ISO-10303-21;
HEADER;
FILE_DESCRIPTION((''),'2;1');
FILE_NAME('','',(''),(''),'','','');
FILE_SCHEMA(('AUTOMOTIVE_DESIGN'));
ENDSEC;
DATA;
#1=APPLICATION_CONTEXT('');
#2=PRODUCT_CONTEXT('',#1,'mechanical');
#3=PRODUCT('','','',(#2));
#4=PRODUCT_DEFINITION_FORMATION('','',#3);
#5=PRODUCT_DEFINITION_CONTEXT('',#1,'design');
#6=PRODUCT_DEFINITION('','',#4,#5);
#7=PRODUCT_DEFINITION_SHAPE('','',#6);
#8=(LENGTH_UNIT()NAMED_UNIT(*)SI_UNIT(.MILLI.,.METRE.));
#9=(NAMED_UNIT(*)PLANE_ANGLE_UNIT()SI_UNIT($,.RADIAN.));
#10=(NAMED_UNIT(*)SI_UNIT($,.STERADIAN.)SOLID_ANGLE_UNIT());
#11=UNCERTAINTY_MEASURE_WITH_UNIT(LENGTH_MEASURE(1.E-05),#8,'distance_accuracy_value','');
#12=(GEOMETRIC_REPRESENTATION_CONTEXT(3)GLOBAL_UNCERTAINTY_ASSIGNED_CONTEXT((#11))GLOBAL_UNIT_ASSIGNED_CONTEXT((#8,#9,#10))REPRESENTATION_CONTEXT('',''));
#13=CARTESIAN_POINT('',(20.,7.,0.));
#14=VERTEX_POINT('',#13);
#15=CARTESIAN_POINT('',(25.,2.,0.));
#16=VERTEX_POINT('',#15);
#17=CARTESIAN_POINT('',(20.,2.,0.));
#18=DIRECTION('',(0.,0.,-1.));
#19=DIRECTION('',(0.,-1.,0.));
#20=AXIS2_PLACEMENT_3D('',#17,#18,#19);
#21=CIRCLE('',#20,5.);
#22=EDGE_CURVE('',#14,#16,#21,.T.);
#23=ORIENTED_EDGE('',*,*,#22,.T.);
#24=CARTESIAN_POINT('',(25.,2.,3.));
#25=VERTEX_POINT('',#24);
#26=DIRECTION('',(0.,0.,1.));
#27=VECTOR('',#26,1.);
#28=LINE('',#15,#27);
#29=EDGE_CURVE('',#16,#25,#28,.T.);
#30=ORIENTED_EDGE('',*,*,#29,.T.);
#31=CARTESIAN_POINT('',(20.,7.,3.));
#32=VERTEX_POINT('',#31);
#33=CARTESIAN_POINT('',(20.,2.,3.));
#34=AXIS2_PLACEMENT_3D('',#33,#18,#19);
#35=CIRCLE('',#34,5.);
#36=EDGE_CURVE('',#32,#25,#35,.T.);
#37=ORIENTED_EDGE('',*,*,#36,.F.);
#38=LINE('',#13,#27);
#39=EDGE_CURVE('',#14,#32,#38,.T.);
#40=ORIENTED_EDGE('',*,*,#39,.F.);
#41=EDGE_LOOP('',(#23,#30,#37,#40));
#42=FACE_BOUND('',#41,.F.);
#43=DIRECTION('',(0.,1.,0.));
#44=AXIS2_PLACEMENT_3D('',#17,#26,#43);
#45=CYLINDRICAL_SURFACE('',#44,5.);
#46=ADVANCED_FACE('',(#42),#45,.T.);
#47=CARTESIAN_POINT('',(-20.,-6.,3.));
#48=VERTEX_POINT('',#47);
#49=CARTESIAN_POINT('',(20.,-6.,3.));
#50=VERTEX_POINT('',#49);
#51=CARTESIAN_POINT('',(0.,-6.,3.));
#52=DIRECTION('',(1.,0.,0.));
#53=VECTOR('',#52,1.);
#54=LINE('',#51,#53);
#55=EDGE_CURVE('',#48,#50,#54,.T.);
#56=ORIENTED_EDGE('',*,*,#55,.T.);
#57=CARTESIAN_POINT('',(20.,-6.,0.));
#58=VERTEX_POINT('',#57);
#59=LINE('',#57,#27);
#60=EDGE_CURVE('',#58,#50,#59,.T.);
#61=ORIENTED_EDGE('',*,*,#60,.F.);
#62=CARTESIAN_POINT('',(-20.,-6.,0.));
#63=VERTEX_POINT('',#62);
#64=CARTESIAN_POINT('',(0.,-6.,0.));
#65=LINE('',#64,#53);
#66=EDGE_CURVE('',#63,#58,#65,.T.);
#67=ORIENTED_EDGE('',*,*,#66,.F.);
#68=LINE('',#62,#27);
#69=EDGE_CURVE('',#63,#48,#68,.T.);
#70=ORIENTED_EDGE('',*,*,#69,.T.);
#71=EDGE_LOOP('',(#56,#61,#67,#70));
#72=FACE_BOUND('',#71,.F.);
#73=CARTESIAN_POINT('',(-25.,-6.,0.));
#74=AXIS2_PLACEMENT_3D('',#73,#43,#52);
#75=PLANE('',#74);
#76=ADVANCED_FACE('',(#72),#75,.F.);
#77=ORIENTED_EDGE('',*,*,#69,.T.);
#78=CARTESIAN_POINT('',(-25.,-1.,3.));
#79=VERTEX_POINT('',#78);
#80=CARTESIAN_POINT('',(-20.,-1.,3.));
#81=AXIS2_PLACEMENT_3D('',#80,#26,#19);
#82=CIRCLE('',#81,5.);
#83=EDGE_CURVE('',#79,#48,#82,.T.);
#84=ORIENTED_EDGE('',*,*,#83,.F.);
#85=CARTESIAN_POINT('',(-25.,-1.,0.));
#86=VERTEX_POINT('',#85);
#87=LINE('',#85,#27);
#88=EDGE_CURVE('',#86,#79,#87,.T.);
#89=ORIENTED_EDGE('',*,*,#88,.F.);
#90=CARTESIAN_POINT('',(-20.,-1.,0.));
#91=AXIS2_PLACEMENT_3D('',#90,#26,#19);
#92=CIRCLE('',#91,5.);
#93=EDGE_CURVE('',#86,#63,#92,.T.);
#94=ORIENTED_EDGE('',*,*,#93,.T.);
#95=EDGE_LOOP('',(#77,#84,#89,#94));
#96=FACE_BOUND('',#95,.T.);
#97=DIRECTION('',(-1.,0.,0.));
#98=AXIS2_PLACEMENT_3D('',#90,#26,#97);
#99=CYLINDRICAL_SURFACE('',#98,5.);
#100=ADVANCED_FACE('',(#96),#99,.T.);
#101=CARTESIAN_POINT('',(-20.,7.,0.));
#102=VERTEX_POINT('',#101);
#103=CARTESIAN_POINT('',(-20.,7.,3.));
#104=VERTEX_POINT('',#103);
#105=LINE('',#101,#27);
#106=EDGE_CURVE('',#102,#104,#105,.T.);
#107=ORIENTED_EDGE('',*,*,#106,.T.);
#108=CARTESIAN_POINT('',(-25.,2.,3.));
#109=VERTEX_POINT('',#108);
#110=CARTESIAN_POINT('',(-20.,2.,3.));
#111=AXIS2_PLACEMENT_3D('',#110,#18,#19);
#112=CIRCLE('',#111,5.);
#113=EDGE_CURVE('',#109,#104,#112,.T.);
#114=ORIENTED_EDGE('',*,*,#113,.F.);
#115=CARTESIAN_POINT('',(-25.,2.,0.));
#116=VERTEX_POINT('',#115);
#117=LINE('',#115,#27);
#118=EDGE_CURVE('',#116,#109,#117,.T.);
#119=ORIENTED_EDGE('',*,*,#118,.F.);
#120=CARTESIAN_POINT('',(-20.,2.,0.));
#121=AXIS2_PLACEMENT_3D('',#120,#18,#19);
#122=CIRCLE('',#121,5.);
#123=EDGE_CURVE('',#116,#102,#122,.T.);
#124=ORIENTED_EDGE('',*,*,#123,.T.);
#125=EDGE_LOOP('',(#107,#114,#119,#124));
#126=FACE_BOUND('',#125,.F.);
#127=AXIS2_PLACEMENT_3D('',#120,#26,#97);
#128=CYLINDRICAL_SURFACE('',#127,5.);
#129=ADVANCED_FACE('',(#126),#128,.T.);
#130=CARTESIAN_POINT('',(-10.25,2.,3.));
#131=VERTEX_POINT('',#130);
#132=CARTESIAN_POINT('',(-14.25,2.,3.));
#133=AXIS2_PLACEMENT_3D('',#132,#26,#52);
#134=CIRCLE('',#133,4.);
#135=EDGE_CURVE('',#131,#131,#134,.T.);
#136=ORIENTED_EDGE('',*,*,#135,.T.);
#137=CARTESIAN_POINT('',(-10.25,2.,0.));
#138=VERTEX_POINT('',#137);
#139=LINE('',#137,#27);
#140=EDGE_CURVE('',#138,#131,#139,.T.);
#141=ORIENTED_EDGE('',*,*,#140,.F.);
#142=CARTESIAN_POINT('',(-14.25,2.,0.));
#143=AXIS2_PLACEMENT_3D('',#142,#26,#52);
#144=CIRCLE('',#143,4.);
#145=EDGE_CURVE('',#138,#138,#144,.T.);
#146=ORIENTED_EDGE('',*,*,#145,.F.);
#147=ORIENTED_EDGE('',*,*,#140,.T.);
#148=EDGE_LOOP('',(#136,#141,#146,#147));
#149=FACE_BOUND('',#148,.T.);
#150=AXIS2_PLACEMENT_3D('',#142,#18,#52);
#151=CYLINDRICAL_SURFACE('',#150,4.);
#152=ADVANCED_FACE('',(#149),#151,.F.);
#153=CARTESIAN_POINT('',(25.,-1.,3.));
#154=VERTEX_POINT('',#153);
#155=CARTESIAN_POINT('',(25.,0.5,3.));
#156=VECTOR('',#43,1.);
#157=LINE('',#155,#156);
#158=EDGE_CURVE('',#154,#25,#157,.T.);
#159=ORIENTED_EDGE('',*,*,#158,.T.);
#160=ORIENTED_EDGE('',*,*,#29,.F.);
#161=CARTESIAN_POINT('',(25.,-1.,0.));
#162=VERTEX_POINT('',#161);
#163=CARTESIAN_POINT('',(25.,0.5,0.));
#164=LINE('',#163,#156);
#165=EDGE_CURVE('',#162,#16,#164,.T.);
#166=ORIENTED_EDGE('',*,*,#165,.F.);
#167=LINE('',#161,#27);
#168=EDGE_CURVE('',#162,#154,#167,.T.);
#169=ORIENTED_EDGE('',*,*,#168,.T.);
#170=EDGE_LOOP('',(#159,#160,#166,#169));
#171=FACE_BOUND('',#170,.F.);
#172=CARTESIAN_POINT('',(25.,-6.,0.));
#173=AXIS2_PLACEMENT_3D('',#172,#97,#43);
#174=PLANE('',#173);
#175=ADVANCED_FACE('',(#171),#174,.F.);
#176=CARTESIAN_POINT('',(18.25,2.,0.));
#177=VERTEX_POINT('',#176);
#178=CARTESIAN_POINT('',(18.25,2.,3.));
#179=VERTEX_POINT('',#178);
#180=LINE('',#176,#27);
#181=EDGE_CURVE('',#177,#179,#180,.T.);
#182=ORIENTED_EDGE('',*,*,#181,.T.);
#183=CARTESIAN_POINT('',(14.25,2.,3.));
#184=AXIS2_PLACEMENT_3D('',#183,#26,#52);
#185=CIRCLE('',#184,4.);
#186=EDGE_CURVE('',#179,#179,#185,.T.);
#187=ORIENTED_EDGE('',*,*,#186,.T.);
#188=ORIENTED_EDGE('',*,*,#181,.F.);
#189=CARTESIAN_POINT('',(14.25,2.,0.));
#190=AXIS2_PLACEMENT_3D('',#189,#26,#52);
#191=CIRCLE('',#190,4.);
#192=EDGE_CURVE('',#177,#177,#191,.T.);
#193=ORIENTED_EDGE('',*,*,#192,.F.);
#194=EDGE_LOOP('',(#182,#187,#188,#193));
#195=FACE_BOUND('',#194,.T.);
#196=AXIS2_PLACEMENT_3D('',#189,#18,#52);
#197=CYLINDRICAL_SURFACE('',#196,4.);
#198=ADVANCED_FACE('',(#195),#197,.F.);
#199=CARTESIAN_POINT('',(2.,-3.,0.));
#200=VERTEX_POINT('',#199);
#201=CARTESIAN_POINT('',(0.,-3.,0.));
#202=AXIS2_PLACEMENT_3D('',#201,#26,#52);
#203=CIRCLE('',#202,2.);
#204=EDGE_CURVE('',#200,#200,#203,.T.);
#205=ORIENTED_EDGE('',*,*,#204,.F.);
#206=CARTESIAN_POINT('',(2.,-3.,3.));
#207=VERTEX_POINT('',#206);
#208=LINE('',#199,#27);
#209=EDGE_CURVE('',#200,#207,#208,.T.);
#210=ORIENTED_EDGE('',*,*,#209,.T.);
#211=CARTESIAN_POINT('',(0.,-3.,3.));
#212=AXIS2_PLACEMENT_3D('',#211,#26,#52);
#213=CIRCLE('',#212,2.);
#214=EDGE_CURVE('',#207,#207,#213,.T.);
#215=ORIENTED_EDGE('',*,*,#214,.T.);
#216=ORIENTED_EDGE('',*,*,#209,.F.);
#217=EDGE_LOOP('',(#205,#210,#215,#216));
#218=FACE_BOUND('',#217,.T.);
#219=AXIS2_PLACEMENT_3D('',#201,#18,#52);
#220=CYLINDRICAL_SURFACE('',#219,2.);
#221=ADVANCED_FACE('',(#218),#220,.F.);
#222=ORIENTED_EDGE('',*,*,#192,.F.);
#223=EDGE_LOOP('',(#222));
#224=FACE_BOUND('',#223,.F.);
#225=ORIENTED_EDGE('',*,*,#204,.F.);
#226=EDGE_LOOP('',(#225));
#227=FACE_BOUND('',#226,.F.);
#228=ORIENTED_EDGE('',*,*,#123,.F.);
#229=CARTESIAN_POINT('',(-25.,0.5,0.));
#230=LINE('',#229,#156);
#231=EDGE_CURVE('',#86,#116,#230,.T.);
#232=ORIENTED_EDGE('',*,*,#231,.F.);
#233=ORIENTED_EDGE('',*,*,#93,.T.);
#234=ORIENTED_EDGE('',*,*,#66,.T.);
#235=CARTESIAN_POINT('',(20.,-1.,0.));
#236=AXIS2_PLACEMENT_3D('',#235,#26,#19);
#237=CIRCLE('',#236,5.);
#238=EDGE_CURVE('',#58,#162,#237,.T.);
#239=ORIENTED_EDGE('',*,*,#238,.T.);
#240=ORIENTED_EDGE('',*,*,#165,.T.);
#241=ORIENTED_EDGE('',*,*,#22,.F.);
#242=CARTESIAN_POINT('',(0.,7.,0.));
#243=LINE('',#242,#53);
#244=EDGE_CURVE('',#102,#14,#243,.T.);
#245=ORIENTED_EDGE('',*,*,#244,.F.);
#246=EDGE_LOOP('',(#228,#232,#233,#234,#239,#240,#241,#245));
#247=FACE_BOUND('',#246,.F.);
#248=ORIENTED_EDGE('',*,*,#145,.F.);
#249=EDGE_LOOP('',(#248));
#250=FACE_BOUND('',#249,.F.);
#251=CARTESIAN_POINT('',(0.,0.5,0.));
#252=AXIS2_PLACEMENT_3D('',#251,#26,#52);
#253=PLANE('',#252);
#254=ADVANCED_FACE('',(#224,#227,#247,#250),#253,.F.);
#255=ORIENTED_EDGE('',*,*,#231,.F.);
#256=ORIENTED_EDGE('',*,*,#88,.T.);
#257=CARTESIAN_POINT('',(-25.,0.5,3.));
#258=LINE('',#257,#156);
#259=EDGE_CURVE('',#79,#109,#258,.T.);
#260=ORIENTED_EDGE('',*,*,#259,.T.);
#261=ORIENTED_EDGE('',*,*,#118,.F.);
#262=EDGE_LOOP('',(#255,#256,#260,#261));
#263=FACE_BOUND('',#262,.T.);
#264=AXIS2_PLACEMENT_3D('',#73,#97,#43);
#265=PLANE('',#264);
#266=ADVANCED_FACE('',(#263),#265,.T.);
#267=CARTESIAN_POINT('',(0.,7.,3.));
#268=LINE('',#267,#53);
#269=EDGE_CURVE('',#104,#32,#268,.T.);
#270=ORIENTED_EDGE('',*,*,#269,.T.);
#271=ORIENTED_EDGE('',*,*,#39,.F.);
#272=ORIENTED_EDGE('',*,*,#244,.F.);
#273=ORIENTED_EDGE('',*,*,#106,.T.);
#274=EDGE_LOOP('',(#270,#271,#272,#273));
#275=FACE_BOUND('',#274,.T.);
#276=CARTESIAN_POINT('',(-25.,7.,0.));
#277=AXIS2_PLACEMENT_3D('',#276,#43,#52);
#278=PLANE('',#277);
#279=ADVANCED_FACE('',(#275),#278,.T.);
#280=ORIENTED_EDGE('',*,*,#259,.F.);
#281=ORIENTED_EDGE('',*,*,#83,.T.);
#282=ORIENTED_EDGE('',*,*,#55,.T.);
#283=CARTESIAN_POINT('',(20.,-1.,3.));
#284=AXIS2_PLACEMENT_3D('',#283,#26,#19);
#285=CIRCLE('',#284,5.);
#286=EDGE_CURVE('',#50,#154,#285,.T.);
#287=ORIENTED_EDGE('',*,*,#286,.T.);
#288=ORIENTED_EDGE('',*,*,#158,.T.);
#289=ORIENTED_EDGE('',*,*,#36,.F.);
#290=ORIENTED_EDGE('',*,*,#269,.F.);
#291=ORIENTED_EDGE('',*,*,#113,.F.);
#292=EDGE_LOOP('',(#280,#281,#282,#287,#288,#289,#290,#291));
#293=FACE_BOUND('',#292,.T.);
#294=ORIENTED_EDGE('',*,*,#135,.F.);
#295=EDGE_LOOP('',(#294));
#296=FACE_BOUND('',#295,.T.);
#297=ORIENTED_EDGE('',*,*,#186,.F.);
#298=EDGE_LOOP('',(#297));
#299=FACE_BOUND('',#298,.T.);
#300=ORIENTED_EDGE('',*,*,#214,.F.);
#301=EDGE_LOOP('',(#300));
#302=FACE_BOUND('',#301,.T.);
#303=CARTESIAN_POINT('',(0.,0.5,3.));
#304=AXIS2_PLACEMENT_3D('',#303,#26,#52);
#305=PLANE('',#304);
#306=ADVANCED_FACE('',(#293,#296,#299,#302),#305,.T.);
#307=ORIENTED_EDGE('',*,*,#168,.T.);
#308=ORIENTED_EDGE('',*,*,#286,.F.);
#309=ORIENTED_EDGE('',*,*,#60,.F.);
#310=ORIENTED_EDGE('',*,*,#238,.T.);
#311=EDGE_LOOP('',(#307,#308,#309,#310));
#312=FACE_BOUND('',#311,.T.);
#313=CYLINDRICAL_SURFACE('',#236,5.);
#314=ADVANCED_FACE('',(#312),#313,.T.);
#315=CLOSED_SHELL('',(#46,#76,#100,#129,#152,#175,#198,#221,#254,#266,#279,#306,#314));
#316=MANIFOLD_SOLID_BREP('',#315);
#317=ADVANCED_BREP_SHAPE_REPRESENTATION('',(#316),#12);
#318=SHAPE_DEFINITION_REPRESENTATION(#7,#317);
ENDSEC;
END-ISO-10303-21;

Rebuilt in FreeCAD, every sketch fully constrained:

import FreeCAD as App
import Part
import Sketcher

V = App.Vector
Q = App.Units.Quantity


def edges_at(feature, points):
    """Names of the edges that pass closest to the given points."""
    edges = feature.Shape.Edges
    near = lambda p: min(range(len(edges)), key=lambda i: edges[i].distToShape(Part.Vertex(*p))[0])
    return sorted({f"Edge{near(p) + 1}" for p in points})

doc = App.newDocument("Part")
body = doc.addObject("PartDesign::Body", "Body")

# Sketch on XY plane
sketch1 = doc.addObject("Sketcher::SketchObject", "Sketch")
body.addObject(sketch1)
sketch1.AttachmentSupport = (doc.XY_Plane, [""])
sketch1.MapMode = "FlatFace"
sketch1.addGeometry(Part.LineSegment(V(-25, 7, 0), V(-25, -6, 0)), False)
sketch1.addGeometry(Part.LineSegment(V(-25, -6, 0), V(25, -6, 0)), False)
sketch1.addGeometry(Part.LineSegment(V(25, -6, 0), V(25, 7, 0)), False)
sketch1.addGeometry(Part.LineSegment(V(25, 7, 0), V(-25, 7, 0)), False)
sketch1.addGeometry(Part.Circle(V(0, -3, 0), V(0, 0, 1), 2), False)
sketch1.addGeometry(Part.Circle(V(-14.25, 2, 0), V(0, 0, 1), 4), False)
sketch1.addGeometry(Part.Circle(V(14.25, 2, 0), V(0, 0, 1), 4), False)
sketch1.addConstraint(Sketcher.Constraint("Coincident", 0, 2, 1, 1))
sketch1.addConstraint(Sketcher.Constraint("Coincident", 1, 2, 2, 1))
sketch1.addConstraint(Sketcher.Constraint("Coincident", 2, 2, 3, 1))
sketch1.addConstraint(Sketcher.Constraint("Coincident", 3, 2, 0, 1))
sketch1.addConstraint(Sketcher.Constraint("Vertical", 0))
sketch1.addConstraint(Sketcher.Constraint("Horizontal", 1))
sketch1.addConstraint(Sketcher.Constraint("Vertical", 2))
sketch1.addConstraint(Sketcher.Constraint("Horizontal", 3))
sketch1.addConstraint(Sketcher.Constraint("Equal", 5, 6))
sketch1.addConstraint(Sketcher.Constraint("Symmetric", 5, 3, 6, 3, -2))
sketch1.addConstraint(Sketcher.Constraint("PointOnObject", 4, 3, -2))
sketch1.addConstraint(Sketcher.Constraint("Diameter", 4, Q("4 mm")))
sketch1.addConstraint(Sketcher.Constraint("Diameter", 5, Q("8 mm")))
sketch1.addConstraint(Sketcher.Constraint("DistanceX", 1, 1, 1, 2, Q("50 mm")))
sketch1.addConstraint(Sketcher.Constraint("DistanceY", 0, 2, 0, 1, Q("13 mm")))
sketch1.addConstraint(Sketcher.Constraint("DistanceY", 4, 3, -1, 1, Q("3 mm")))
sketch1.addConstraint(Sketcher.Constraint("DistanceY", -1, 1, 5, 3, Q("2 mm")))
sketch1.addConstraint(Sketcher.Constraint("DistanceX", 0, 2, -1, 1, Q("25 mm")))
sketch1.addConstraint(Sketcher.Constraint("DistanceY", 0, 2, -1, 1, Q("6 mm")))
sketch1.addConstraint(Sketcher.Constraint("DistanceX", 5, 3, 6, 3, Q("28.5 mm")))
pad1 = doc.addObject("PartDesign::Pad", "Pad")
body.addObject(pad1)
pad1.Profile = sketch1
pad1.Length = 3
doc.recompute()

fillet = doc.addObject("PartDesign::Fillet", "Fillet")
body.addObject(fillet)
fillet.Base = (pad1, edges_at(pad1, [
    (-25, 7, 1.5),
    (-25, -6, 1.5),
    (25, -6, 1.5),
    (25, 7, 1.5),
]))
fillet.Radius = 5

doc.recompute()
